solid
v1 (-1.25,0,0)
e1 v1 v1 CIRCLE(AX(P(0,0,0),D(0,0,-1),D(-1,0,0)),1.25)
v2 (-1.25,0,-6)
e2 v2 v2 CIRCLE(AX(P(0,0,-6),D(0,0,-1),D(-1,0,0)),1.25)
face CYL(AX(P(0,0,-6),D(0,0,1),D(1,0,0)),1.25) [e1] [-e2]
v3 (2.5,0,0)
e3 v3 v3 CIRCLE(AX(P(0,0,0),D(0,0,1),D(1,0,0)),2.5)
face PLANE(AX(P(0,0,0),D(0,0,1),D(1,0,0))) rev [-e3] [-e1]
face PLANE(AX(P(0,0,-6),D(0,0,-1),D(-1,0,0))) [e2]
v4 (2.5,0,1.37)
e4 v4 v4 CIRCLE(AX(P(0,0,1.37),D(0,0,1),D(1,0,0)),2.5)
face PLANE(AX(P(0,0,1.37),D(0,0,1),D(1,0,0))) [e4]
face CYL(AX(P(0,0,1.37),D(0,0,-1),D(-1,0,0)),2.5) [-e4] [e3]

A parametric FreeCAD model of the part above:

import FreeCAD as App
import Part
import Sketcher
from FreeCAD import Vector
Q = App.Units.Quantity

doc = App.newDocument("Part")
body = doc.addObject("PartDesign::Body", "Body")

sketch1 = body.newObject("Sketcher::SketchObject", "Sketch")
sketch1.AttachmentSupport = (doc.getObject("XY_Plane"), [""])
sketch1.MapMode = "FlatFace"
sketch1.addGeometry(Part.Circle(Vector(0, 0, 0), Vector(0, 0, 1), 2.5), False)
sketch1.addConstraint([
    Sketcher.Constraint("Coincident", 0, 3, -1, 1),
    Sketcher.Constraint("Diameter", 0, Q("5 mm")),
])
pad1 = body.newObject("PartDesign::Pad", "Pad")
pad1.Profile = sketch1
pad1.Length = 1.37

sketch2 = body.newObject("Sketcher::SketchObject", "Sketch001")
sketch2.AttachmentSupport = (doc.getObject("XY_Plane"), [""])
sketch2.MapMode = "FlatFace"
sketch2.addGeometry(Part.Circle(Vector(0, 0, 0), Vector(0, 0, 1), 1.25), False)
sketch2.addConstraint([
    Sketcher.Constraint("Coincident", 0, 3, -1, 1),
    Sketcher.Constraint("Diameter", 0, Q("2.5 mm")),
])
pad2 = body.newObject("PartDesign::Pad", "Pad001")
pad2.Profile = sketch2
pad2.Length = 6
pad2.Reversed = True

doc.recompute()
